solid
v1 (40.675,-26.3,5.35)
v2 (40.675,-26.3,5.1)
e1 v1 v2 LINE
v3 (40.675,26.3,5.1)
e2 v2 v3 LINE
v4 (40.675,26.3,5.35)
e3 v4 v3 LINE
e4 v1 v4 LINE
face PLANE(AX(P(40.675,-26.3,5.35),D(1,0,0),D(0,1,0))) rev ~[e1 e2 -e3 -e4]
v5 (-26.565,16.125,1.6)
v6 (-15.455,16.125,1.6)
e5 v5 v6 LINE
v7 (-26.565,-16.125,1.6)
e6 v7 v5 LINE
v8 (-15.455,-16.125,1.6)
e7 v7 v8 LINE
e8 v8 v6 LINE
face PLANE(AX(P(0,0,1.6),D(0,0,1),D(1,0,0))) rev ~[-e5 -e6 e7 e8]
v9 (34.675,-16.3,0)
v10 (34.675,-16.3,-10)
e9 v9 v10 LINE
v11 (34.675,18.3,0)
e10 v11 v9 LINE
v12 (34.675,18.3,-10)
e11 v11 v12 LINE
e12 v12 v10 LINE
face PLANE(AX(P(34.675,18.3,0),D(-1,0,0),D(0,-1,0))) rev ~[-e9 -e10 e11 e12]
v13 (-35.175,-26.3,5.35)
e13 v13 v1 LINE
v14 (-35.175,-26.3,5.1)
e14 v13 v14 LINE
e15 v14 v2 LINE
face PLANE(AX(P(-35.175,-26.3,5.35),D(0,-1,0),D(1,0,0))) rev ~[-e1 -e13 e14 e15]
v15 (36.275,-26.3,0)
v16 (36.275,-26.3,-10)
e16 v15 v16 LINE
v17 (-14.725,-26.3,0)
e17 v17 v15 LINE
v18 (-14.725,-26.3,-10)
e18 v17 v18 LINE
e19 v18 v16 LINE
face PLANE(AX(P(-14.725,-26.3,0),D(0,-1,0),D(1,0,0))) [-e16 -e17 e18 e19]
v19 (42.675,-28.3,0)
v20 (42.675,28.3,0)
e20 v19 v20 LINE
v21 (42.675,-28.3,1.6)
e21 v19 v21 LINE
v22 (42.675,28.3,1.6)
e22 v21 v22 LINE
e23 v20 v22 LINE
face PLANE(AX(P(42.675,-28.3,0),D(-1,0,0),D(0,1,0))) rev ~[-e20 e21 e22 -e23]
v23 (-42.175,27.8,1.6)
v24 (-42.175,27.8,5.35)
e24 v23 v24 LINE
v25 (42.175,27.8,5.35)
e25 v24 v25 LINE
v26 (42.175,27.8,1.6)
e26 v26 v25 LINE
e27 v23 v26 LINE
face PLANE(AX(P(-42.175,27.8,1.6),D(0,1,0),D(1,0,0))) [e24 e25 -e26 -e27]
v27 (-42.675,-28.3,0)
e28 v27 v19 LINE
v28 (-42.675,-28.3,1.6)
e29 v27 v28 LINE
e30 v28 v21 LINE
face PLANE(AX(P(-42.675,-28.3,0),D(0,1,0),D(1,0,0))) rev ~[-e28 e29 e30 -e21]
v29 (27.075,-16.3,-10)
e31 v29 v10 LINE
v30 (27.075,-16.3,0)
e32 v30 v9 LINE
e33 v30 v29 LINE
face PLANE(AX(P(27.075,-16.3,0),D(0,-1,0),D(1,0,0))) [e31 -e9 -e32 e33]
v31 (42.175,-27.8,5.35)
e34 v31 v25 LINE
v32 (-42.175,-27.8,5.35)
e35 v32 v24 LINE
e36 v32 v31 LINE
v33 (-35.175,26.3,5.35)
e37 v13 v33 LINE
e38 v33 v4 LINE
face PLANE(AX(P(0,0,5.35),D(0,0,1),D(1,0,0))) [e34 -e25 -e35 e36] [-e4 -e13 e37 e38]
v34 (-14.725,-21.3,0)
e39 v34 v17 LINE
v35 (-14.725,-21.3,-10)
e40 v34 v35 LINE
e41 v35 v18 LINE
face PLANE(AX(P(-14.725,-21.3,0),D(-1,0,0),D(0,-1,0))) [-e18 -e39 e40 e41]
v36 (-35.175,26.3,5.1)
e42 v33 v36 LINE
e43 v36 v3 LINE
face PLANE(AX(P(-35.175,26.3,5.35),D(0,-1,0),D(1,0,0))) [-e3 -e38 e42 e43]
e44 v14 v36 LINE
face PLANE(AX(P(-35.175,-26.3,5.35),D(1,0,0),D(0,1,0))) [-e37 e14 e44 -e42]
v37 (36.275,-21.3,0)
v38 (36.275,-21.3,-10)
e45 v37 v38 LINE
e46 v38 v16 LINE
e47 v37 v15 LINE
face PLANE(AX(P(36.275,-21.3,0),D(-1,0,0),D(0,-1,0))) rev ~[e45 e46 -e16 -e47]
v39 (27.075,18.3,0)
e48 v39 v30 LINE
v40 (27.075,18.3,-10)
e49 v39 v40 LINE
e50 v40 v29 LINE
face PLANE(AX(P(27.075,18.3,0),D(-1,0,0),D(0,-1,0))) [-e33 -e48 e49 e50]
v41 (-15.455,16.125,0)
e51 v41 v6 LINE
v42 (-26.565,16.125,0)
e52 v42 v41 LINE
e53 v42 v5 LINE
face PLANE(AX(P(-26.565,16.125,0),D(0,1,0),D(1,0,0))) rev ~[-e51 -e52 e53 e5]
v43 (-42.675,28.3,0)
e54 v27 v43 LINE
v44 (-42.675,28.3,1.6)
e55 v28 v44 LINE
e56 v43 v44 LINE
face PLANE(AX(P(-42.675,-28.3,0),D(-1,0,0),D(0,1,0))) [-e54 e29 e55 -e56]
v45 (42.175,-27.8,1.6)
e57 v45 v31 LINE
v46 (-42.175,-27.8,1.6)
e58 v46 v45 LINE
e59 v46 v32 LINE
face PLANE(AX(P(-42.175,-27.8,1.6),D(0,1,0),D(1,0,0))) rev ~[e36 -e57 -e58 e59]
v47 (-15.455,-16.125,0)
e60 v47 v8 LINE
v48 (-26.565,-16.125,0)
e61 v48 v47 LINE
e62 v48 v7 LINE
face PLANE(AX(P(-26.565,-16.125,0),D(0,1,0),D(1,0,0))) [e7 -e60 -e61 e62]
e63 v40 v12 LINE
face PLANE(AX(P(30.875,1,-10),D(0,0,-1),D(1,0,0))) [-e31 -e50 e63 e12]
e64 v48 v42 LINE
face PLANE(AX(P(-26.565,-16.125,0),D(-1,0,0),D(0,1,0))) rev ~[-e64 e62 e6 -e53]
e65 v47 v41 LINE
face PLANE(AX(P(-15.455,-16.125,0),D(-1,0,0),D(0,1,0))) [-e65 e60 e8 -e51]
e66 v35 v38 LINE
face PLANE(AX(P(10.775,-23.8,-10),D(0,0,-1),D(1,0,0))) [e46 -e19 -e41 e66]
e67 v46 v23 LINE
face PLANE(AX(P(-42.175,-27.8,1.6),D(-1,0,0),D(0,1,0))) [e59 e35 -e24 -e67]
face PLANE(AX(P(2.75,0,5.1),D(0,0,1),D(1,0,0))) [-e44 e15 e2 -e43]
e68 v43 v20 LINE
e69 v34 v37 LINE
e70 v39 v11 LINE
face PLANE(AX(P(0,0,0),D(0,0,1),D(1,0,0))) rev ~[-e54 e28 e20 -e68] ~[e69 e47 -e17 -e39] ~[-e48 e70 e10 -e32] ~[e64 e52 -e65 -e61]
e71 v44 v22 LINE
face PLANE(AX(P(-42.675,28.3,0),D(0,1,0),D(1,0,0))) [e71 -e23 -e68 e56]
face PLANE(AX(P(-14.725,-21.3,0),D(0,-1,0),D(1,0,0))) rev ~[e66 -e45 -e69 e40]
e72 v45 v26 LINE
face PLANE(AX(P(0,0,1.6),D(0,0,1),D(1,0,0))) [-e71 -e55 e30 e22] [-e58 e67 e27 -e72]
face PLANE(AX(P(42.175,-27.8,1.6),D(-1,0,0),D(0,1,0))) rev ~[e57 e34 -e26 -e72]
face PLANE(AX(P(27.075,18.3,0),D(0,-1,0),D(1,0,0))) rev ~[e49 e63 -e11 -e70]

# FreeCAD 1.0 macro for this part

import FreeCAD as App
import Part
import Sketcher

V = App.Vector

doc = App.newDocument("Part")
params = doc.addObject("Spreadsheet::Sheet", "Params")
for row, (alias, value) in enumerate([
    ("sketch1_height", "56.6 mm"),
    ("sketch1_width", "85.35 mm"),
    ("sketch1_width2", "11.11 mm"),
    ("sketch1_height2", "32.25 mm"),
    ("pad1_length", "1.6 mm"),
    ("sketch2_height", "55.6 mm"),
    ("sketch2_width", "84.35 mm"),
    ("pad2_length", "3.75 mm"),
    ("sketch3_height", "52.6 mm"),
    ("sketch3_width", "75.85 mm"),
    ("pocket1_length", "0.25 mm"),
    ("sketch4_width", "51 mm"),
    ("sketch4_height", "5 mm"),
    ("sketch4_width2", "7.6 mm"),
    ("sketch4_height2", "34.6 mm"),
    ("pad3_length", "10 mm"),
], start=1):
    params.set(f"A{row}", alias)
    params.set(f"B{row}", "=" + value)
    params.setAlias(f"B{row}", alias)

body = doc.addObject("PartDesign::Body", "Body")

sketch1 = body.newObject("Sketcher::SketchObject", "Sketch")
sketch1.AttachmentSupport = (doc.getObject("XY_Plane"), [""])
sketch1.MapMode = "FlatFace"
sketch1.addGeometry([
    Part.LineSegment(V(-43, 28, 0), V(-43, -28, 0)),
    Part.LineSegment(V(-43, -28, 0), V(43, -28, 0)),
    Part.LineSegment(V(43, -28, 0), V(43, 28, 0)),
    Part.LineSegment(V(43, 28, 0), V(-43, 28, 0)),
    Part.LineSegment(V(-15, -16, 0), V(-27, -16, 0)),
    Part.LineSegment(V(-27, -16, 0), V(-27, 16, 0)),
    Part.LineSegment(V(-27, 16, 0), V(-15, 16, 0)),
    Part.LineSegment(V(-15, 16, 0), V(-15, -16, 0)),
], False)
sketch1.addConstraint([
    Sketcher.Constraint("Coincident", 0, 2, 1, 1),
    Sketcher.Constraint("Coincident", 1, 2, 2, 1),
    Sketcher.Constraint("Coincident", 2, 2, 3, 1),
    Sketcher.Constraint("Coincident", 3, 2, 0, 1),
    Sketcher.Constraint("Coincident", 4, 2, 5, 1),
    Sketcher.Constraint("Coincident", 5, 2, 6, 1),
    Sketcher.Constraint("Coincident", 6, 2, 7, 1),
    Sketcher.Constraint("Coincident", 7, 2, 4, 1),
    Sketcher.Constraint("Vertical", 0),
    Sketcher.Constraint("Horizontal", 1),
    Sketcher.Constraint("Vertical", 2),
    Sketcher.Constraint("Horizontal", 3),
    Sketcher.Constraint("Horizontal", 4),
    Sketcher.Constraint("Vertical", 5),
    Sketcher.Constraint("Horizontal", 6),
    Sketcher.Constraint("Vertical", 7),
    Sketcher.Constraint("Symmetric", 0, 2, 2, 2, -1, 1),
    Sketcher.Constraint("DistanceY", 0, 2, 0, 1, 56.6),
    Sketcher.Constraint("DistanceX", 1, 1, 1, 2, 85.35),
    Sketcher.Constraint("DistanceX", 4, 2, 4, 1, 11.11),
    Sketcher.Constraint("DistanceY", 5, 1, 5, 2, 32.25),
    Sketcher.Constraint("DistanceX", 0, 2, 4, 2, 16.11),
    Sketcher.Constraint("DistanceY", 4, 2, -1, 1, 16.125),
])
sketch1.setExpression("Constraints[17]", "Params.sketch1_height")
sketch1.setExpression("Constraints[18]", "Params.sketch1_width")
sketch1.setExpression("Constraints[19]", "Params.sketch1_width2")
sketch1.setExpression("Constraints[20]", "Params.sketch1_height2")
pad1 = body.newObject("PartDesign::Pad", "Pad")
pad1.Profile = sketch1
pad1.setExpression("Length", "Params.pad1_length")

sketch2 = body.newObject("Sketcher::SketchObject", "Sketch001")
sketch2.AttachmentSupport = (doc.getObject("XY_Plane"), [""])
sketch2.MapMode = "FlatFace"
sketch2.AttachmentOffset = App.Placement(V(0, 0, 1.6), App.Rotation())
sketch2.addGeometry([
    Part.LineSegment(V(-42, 28, 0), V(-42, -28, 0)),
    Part.LineSegment(V(-42, -28, 0), V(42, -28, 0)),
    Part.LineSegment(V(42, -28, 0), V(42, 28, 0)),
    Part.LineSegment(V(42, 28, 0), V(-42, 28, 0)),
], False)
sketch2.addConstraint([
    Sketcher.Constraint("Coincident", 0, 2, 1, 1),
    Sketcher.Constraint("Coincident", 1, 2, 2, 1),
    Sketcher.Constraint("Coincident", 2, 2, 3, 1),
    Sketcher.Constraint("Coincident", 3, 2, 0, 1),
    Sketcher.Constraint("Vertical", 0),
    Sketcher.Constraint("Horizontal", 1),
    Sketcher.Constraint("Vertical", 2),
    Sketcher.Constraint("Horizontal", 3),
    Sketcher.Constraint("Symmetric", 0, 2, 2, 2, -1, 1),
    Sketcher.Constraint("DistanceY", 0, 2, 0, 1, 55.6),
    Sketcher.Constraint("DistanceX", 1, 1, 1, 2, 84.35),
])
sketch2.setExpression("Constraints[9]", "Params.sketch2_height")
sketch2.setExpression("Constraints[10]", "Params.sketch2_width")
pad2 = body.newObject("PartDesign::Pad", "Pad001")
pad2.Profile = sketch2
pad2.setExpression("Length", "Params.pad2_length")

sketch3 = body.newObject("Sketcher::SketchObject", "Sketch002")
sketch3.AttachmentSupport = (doc.getObject("XY_Plane"), [""])
sketch3.MapMode = "FlatFace"
sketch3.AttachmentOffset = App.Placement(V(0, 0, 5.35), App.Rotation())
sketch3.addGeometry([
    Part.LineSegment(V(-35, 26, 0), V(-35, -26, 0)),
    Part.LineSegment(V(-35, -26, 0), V(41, -26, 0)),
    Part.LineSegment(V(41, -26, 0), V(41, 26, 0)),
    Part.LineSegment(V(41, 26, 0), V(-35, 26, 0)),
], False)
sketch3.addConstraint([
    Sketcher.Constraint("Coincident", 0, 2, 1, 1),
    Sketcher.Constraint("Coincident", 1, 2, 2, 1),
    Sketcher.Constraint("Coincident", 2, 2, 3, 1),
    Sketcher.Constraint("Coincident", 3, 2, 0, 1),
    Sketcher.Constraint("Vertical", 0),
    Sketcher.Constraint("Horizontal", 1),
    Sketcher.Constraint("Vertical", 2),
    Sketcher.Constraint("Horizontal", 3),
    Sketcher.Constraint("DistanceY", 0, 2, 0, 1, 52.6),
    Sketcher.Constraint("DistanceX", 1, 1, 1, 2, 75.85),
    Sketcher.Constraint("DistanceY", 0, 2, -1, 1, 26.3),
    Sketcher.Constraint("DistanceX", 0, 2, -1, 1, 35.175),
])
sketch3.setExpression("Constraints[8]", "Params.sketch3_height")
sketch3.setExpression("Constraints[9]", "Params.sketch3_width")
pocket1 = body.newObject("PartDesign::Pocket", "Pocket")
pocket1.Profile = sketch3
pocket1.setExpression("Length", "Params.pocket1_length")

sketch4 = body.newObject("Sketcher::SketchObject", "Sketch003")
sketch4.AttachmentSupport = (doc.getObject("XY_Plane"), [""])
sketch4.MapMode = "FlatFace"
sketch4.addGeometry([
    Part.LineSegment(V(27, -16, 0), V(27, 18, 0)),
    Part.LineSegment(V(27, 18, 0), V(35, 18, 0)),
    Part.LineSegment(V(35, 18, 0), V(35, -16, 0)),
    Part.LineSegment(V(35, -16, 0), V(27, -16, 0)),
    Part.LineSegment(V(-15, -26, 0), V(-15, -21, 0)),
    Part.LineSegment(V(-15, -21, 0), V(36, -21, 0)),
    Part.LineSegment(V(36, -21, 0), V(36, -26, 0)),
    Part.LineSegment(V(36, -26, 0), V(-15, -26, 0)),
], False)
sketch4.addConstraint([
    Sketcher.Constraint("Coincident", 0, 2, 1, 1),
    Sketcher.Constraint("Coincident", 1, 2, 2, 1),
    Sketcher.Constraint("Coincident", 2, 2, 3, 1),
    Sketcher.Constraint("Coincident", 3, 2, 0, 1),
    Sketcher.Constraint("Coincident", 4, 2, 5, 1),
    Sketcher.Constraint("Coincident", 5, 2, 6, 1),
    Sketcher.Constraint("Coincident", 6, 2, 7, 1),
    Sketcher.Constraint("Coincident", 7, 2, 4, 1),
    Sketcher.Constraint("Vertical", 0),
    Sketcher.Constraint("Horizontal", 1),
    Sketcher.Constraint("Vertical", 2),
    Sketcher.Constraint("Horizontal", 3),
    Sketcher.Constraint("Vertical", 4),
    Sketcher.Constraint("Horizontal", 5),
    Sketcher.Constraint("Vertical", 6),
    Sketcher.Constraint("Horizontal", 7),
    Sketcher.Constraint("DistanceX", 5, 1, 5, 2, 51.0),
    Sketcher.Constraint("DistanceY", 4, 1, 4, 2, 5.0),
    Sketcher.Constraint("DistanceX", 1, 1, 1, 2, 7.6),
    Sketcher.Constraint("DistanceY", 0, 1, 0, 2, 34.6),
    Sketcher.Constraint("DistanceY", 4, 2, 3, 2, 5.0),
    Sketcher.Constraint("DistanceY", -1, 1, 0, 2, 18.3),
    Sketcher.Constraint("DistanceX", 4, 2, 3, 2, 41.8),
    Sketcher.Constraint("DistanceX", -1, 1, 0, 2, 27.075),
])
sketch4.setExpression("Constraints[16]", "Params.sketch4_width")
sketch4.setExpression("Constraints[17]", "Params.sketch4_height")
sketch4.setExpression("Constraints[18]", "Params.sketch4_width2")
sketch4.setExpression("Constraints[19]", "Params.sketch4_height2")
pad3 = body.newObject("PartDesign::Pad", "Pad002")
pad3.Profile = sketch4
pad3.setExpression("Length", "Params.pad3_length")
pad3.Reversed = True

doc.recompute()
